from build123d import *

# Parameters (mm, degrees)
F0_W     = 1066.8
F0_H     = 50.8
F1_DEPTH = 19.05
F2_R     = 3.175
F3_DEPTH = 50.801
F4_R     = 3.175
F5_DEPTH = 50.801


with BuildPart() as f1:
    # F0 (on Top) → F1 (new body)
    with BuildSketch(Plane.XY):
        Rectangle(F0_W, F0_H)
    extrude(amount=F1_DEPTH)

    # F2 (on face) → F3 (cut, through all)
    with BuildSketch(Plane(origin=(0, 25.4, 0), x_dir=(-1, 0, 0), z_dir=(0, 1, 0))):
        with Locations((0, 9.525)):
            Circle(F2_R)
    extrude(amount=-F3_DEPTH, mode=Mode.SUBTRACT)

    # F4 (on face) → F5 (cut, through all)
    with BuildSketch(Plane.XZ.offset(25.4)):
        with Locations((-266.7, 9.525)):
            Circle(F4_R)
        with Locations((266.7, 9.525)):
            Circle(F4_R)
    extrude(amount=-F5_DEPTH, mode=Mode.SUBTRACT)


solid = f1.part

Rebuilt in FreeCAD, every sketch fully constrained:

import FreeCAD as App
import Part
import Sketcher

V = App.Vector
Q = App.Units.Quantity


def add_polygon(sketch, points):
    """Adds a closed chain of lines whose ends are joined by coincident constraints."""
    first, n = sketch.GeometryCount, len(points)
    for a, b in zip(points, points[1:] + points[:1]):
        sketch.addGeometry(Part.LineSegment(App.Vector(*a, 0), App.Vector(*b, 0)), False)
    for i in range(n):
        sketch.addConstraint(Sketcher.Constraint("Coincident", first + i, 2, first + (i + 1) % n, 1))

doc = App.newDocument("Part")
params = doc.addObject("Spreadsheet::Sheet", "Params")
for row, (alias, value) in enumerate([
    ("sketch1_width", "42 in"),
    ("sketch1_height", "2 in"),
    ("pad1_length", "0.75 in"),
    ("sketch2_diameter", "0.25 in"),
    ("sketch3_diameter", "0.25 in"),
], start=1):
    params.set(f"A{row}", alias)
    params.set(f"B{row}", "=" + value)
    params.setAlias(f"B{row}", alias)

body = doc.addObject("PartDesign::Body", "Body")

sketch1 = body.newObject("Sketcher::SketchObject", "Sketch")
sketch1.AttachmentSupport = (doc.getObject("XY_Plane"), [""])
sketch1.MapMode = "FlatFace"
add_polygon(sketch1, [(-533.4, 25.4), (-533.4, -25.4), (533.4, -25.4), (533.4, 25.4)])
sketch1.addConstraint([
    Sketcher.Constraint("Vertical", 0),
    Sketcher.Constraint("Horizontal", 1),
    Sketcher.Constraint("Vertical", 2),
    Sketcher.Constraint("Horizontal", 3),
    Sketcher.Constraint("Symmetric", 0, 2, 2, 2, -1, 1),
    Sketcher.Constraint("DistanceX", 1, 1, 1, 2, Q("42 in")),
    Sketcher.Constraint("DistanceY", 0, 2, 0, 1, Q("2 in")),
])
sketch1.setExpression("Constraints[9]", "Params.sketch1_width")
sketch1.setExpression("Constraints[10]", "Params.sketch1_height")
pad1 = body.newObject("PartDesign::Pad", "Pad")
pad1.Profile = sketch1
pad1.setExpression("Length", "Params.pad1_length")

sketch2 = body.newObject("Sketcher::SketchObject", "Sketch001")
sketch2.AttachmentSupport = (doc.getObject("XZ_Plane"), [""])
sketch2.MapMode = "FlatFace"
sketch2.AttachmentOffset = App.Placement(V(0, 0, -1 * 25.4), App.Rotation())
sketch2.addGeometry(Part.Circle(V(0, 9.525, 0), V(0, 0, 1), 3.175), False)
sketch2.addConstraint([
    Sketcher.Constraint("PointOnObject", 0, 3, -2),
    Sketcher.Constraint("Diameter", 0, Q("0.25 in")),
    Sketcher.Constraint("DistanceY", -1, 1, 0, 3, Q("0.375 in")),
])
sketch2.setExpression("Constraints[1]", "Params.sketch2_diameter")
pocket1 = body.newObject("PartDesign::Pocket", "Pocket")
pocket1.Profile = sketch2
pocket1.Type = "ThroughAll"
pocket1.Reversed = True

sketch3 = body.newObject("Sketcher::SketchObject", "Sketch002")
sketch3.AttachmentSupport = (doc.getObject("XZ_Plane"), [""])
sketch3.MapMode = "FlatFace"
sketch3.AttachmentOffset = App.Placement(V(0, 0, 1 * 25.4), App.Rotation())
sketch3.addGeometry([
    Part.Circle(V(-266.7, 9.525, 0), V(0, 0, 1), 3.175),
    Part.Circle(V(266.7, 9.525, 0), V(0, 0, 1), 3.175),
], False)
sketch3.addConstraint([
    Sketcher.Constraint("Equal", 0, 1),
    Sketcher.Constraint("Symmetric", 0, 3, 1, 3, -2),
    Sketcher.Constraint("Diameter", 0, Q("0.25 in")),
    Sketcher.Constraint("DistanceX", 0, 3, 1, 3, Q("21 in")),
    Sketcher.Constraint("DistanceY", -1, 1, 0, 3, Q("0.375 in")),
])
sketch3.setExpression("Constraints[2]", "Params.sketch3_diameter")
pocket2 = body.newObject("PartDesign::Pocket", "Pocket001")
pocket2.Profile = sketch3
pocket2.Type = "ThroughAll"

doc.recompute()
